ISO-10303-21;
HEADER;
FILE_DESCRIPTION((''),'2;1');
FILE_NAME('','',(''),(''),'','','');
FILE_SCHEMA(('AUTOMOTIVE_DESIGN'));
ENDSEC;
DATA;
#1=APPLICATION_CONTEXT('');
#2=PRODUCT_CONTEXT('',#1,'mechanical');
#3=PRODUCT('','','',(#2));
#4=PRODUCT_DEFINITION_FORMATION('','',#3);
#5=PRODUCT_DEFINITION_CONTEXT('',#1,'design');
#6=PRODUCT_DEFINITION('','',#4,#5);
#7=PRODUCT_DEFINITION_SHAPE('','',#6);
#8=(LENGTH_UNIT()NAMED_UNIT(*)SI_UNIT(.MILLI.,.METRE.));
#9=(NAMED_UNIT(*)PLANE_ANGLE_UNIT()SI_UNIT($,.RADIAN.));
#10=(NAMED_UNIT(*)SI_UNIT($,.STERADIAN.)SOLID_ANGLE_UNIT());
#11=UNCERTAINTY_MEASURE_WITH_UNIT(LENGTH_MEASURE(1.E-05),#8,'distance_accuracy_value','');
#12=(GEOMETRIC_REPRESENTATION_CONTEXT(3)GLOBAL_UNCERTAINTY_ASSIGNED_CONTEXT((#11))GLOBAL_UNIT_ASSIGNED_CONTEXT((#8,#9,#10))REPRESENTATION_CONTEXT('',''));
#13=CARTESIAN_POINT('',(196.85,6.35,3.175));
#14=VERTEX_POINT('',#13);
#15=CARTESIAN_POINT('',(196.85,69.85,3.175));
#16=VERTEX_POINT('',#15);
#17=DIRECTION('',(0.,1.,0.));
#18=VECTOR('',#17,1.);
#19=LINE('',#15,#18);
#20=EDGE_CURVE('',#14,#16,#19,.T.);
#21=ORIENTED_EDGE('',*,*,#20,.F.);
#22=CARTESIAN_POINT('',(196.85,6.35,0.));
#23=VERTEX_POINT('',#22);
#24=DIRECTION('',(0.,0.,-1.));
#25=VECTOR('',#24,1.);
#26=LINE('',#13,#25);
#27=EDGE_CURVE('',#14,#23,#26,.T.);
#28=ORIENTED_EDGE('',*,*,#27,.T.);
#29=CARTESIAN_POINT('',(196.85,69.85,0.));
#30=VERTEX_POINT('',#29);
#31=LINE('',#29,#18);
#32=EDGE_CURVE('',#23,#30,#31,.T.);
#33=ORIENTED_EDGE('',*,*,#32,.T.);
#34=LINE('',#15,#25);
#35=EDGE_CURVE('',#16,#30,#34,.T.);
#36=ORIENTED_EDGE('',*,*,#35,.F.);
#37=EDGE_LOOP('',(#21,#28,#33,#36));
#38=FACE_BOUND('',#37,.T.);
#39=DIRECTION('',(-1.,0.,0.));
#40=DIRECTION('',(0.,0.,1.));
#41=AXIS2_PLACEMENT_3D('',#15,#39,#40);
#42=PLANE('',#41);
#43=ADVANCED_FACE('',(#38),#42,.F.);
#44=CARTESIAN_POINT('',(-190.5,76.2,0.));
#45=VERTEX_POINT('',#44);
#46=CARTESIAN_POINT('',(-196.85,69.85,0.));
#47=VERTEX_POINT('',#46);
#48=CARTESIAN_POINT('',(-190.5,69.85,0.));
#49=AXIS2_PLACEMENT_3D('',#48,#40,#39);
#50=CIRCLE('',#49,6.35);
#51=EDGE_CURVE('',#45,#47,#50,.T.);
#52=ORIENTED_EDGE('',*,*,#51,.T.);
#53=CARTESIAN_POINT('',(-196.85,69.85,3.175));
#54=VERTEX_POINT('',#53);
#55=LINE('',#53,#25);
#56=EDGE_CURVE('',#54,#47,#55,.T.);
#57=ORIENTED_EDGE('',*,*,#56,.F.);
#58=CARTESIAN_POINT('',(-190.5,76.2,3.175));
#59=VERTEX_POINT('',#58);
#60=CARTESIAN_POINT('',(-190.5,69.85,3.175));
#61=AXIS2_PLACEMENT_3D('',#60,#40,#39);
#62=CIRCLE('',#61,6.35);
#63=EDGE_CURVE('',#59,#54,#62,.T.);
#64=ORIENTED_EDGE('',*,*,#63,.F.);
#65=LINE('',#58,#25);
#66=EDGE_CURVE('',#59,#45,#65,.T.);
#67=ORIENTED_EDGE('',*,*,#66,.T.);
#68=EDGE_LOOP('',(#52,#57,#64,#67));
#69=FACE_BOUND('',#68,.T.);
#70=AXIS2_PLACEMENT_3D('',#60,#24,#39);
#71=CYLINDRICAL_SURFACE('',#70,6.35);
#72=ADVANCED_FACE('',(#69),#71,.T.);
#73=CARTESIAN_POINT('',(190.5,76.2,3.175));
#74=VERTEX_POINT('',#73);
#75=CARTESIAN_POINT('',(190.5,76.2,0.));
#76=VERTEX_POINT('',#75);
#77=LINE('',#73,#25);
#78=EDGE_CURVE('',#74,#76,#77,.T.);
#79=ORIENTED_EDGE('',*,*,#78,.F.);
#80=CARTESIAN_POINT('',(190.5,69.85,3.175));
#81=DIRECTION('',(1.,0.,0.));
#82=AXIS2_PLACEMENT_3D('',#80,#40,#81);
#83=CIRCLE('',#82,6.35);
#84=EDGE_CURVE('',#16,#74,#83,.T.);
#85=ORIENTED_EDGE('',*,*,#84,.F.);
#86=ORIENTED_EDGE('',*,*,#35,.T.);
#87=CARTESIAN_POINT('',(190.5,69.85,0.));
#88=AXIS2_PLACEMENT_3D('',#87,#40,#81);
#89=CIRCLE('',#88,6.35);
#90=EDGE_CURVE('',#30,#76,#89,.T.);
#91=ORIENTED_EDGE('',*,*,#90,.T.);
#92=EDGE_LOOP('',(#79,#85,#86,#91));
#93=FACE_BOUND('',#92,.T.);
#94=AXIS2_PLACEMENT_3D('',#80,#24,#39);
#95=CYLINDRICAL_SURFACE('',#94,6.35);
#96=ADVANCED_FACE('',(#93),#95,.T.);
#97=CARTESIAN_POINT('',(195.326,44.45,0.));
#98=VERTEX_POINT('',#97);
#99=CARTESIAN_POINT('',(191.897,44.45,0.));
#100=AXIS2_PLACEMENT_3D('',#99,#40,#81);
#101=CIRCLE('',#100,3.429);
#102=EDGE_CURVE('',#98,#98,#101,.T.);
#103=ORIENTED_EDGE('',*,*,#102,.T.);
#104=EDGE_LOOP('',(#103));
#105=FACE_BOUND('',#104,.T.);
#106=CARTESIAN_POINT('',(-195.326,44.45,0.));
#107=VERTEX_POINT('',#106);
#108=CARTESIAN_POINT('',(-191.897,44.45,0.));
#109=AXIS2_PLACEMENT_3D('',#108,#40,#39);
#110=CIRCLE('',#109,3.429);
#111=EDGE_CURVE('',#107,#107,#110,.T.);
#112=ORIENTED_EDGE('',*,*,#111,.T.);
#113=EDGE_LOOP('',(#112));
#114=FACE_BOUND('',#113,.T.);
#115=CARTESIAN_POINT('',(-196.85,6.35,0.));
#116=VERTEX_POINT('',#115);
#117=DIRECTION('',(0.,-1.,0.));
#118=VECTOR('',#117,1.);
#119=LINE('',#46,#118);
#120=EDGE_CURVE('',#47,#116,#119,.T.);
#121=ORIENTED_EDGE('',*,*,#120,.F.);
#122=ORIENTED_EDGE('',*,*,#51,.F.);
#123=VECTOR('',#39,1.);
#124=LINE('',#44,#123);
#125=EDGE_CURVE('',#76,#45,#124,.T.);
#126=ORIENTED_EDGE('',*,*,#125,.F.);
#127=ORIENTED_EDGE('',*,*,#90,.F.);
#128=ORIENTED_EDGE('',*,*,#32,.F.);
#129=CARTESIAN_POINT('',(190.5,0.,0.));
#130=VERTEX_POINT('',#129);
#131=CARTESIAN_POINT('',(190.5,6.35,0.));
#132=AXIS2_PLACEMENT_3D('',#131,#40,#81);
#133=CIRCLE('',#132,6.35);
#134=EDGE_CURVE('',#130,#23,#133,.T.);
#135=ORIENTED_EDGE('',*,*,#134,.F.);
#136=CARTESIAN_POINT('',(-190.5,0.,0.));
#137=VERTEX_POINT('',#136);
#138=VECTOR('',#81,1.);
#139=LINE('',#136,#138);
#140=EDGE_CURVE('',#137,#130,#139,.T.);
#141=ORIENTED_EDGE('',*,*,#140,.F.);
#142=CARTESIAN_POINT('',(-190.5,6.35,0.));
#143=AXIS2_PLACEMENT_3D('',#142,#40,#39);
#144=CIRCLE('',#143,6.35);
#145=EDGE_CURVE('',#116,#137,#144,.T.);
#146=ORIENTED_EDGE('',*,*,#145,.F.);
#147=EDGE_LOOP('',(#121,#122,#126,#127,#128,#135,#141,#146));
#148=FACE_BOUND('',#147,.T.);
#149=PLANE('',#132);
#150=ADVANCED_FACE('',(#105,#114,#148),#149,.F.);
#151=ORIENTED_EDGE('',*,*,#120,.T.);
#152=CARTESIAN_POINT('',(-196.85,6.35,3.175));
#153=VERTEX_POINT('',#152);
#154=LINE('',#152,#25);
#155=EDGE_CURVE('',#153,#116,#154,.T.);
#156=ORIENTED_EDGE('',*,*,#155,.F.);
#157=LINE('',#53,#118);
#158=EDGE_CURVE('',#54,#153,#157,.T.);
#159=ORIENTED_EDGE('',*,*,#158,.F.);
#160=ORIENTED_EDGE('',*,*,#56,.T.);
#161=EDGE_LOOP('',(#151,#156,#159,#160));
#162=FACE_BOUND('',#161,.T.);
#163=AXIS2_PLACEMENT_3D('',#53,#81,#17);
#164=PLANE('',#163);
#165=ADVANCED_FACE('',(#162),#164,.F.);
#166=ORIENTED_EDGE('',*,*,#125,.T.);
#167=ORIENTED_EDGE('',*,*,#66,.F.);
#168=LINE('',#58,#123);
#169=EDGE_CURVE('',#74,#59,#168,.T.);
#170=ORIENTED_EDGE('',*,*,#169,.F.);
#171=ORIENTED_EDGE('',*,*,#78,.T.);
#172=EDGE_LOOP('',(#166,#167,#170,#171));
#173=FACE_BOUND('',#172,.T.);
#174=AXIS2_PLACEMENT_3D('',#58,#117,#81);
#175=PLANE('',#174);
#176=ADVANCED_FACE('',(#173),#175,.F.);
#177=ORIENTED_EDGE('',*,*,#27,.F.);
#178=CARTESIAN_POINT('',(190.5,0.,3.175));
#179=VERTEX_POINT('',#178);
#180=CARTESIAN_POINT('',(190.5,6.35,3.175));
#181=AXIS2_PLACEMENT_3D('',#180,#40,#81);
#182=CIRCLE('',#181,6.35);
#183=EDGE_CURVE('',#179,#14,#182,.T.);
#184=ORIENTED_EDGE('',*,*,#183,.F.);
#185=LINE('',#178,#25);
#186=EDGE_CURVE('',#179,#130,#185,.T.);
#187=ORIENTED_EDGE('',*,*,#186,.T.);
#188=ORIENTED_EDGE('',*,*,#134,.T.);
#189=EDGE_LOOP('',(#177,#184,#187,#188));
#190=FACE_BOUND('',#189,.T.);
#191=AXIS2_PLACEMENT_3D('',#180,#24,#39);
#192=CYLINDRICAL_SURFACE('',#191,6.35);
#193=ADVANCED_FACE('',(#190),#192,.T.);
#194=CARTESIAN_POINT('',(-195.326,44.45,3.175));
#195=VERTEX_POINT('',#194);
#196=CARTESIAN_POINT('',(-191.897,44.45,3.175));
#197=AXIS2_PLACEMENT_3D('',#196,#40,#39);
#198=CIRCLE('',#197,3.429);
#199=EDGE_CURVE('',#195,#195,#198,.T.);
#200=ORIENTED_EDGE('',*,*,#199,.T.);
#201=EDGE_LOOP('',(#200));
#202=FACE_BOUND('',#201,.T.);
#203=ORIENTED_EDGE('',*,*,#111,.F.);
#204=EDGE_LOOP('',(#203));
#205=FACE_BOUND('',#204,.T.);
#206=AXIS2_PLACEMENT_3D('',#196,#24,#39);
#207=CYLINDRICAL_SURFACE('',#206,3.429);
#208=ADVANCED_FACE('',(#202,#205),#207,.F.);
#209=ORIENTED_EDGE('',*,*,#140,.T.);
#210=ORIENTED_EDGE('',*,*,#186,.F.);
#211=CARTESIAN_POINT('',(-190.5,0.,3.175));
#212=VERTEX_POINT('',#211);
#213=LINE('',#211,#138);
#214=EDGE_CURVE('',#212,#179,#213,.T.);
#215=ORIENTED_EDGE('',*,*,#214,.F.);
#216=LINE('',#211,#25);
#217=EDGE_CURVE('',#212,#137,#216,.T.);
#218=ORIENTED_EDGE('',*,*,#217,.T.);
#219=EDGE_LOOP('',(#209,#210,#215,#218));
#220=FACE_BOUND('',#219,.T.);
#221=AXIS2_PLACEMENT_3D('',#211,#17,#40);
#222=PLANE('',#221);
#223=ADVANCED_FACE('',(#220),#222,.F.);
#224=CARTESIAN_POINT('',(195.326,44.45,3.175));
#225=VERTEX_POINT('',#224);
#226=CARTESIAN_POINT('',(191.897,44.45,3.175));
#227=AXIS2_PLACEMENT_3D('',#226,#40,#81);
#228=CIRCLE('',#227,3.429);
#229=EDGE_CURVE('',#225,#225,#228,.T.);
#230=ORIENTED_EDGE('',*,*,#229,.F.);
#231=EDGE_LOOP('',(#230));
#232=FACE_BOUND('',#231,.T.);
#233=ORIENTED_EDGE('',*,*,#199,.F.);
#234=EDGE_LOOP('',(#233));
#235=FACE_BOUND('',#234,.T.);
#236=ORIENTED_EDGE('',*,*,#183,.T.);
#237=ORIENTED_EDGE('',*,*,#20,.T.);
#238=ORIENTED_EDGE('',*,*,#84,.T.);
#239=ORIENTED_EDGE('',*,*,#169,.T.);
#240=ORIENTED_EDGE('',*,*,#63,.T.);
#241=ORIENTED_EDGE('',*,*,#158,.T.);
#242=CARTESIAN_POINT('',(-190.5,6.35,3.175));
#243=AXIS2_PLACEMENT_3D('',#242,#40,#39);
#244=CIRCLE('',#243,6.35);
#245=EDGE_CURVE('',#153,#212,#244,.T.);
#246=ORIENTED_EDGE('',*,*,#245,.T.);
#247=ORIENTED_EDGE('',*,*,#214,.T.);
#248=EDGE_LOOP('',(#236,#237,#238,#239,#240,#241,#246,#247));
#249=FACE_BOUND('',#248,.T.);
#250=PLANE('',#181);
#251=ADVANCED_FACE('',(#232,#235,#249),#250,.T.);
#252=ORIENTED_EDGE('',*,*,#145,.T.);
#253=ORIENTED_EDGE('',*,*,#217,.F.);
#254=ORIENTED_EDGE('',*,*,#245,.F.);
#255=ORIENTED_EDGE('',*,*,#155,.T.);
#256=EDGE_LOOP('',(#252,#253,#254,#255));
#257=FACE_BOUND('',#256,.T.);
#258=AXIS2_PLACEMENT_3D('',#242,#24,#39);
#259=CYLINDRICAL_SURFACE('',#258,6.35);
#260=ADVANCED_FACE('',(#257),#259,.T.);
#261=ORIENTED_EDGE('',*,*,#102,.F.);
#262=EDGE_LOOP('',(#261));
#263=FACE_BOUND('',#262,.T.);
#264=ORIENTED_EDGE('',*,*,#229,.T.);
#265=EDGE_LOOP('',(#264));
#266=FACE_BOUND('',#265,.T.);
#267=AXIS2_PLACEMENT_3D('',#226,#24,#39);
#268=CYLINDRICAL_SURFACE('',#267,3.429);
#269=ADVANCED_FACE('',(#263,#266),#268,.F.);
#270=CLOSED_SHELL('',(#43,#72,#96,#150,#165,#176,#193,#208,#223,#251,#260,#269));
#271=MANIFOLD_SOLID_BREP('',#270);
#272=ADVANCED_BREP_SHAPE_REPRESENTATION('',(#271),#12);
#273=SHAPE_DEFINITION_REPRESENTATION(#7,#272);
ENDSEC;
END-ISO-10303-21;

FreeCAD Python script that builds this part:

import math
import FreeCAD as App
import Part
import Sketcher
Q = App.Units.Quantity

doc = App.newDocument("Part")
body = doc.addObject("PartDesign::Body", "Body")

sketch1 = doc.addObject("Sketcher::SketchObject", "Sketch")
body.addObject(sketch1)
sketch1.AttachmentSupport = (doc.XY_Plane, [""])
sketch1.MapMode = "FlatFace"
sketch1.addGeometry(Part.LineSegment(App.Vector(-196.8, 69.8, 0), App.Vector(-196.8, 6.3, 0)), False)
sketch1.addGeometry(Part.ArcOfCircle(Part.Circle(App.Vector(-190.5, 6.3, 0), App.Vector(0, 0, 1), 6.3), math.radians(180), math.radians(270)), False)
sketch1.addGeometry(Part.LineSegment(App.Vector(-190.5, 0, 0), App.Vector(190.5, 0, 0)), False)
sketch1.addGeometry(Part.ArcOfCircle(Part.Circle(App.Vector(190.5, 6.3, 0), App.Vector(0, 0, 1), 6.3), math.radians(-90), math.radians(0)), False)
sketch1.addGeometry(Part.LineSegment(App.Vector(196.8, 6.3, 0), App.Vector(196.8, 69.8, 0)), False)
sketch1.addGeometry(Part.ArcOfCircle(Part.Circle(App.Vector(190.5, 69.9, 0), App.Vector(0, 0, 1), 6.3), math.radians(0), math.radians(90)), False)
sketch1.addGeometry(Part.LineSegment(App.Vector(190.5, 76.2, 0), App.Vector(-190.5, 76.2, 0)), False)
sketch1.addGeometry(Part.ArcOfCircle(Part.Circle(App.Vector(-190.5, 69.9, 0), App.Vector(0, 0, 1), 6.3), math.radians(90), math.radians(180)), False)
sketch1.addGeometry(Part.Circle(App.Vector(-191.9, 44.5, 0), App.Vector(0, 0, 1), 3.4), False)
sketch1.addGeometry(Part.Circle(App.Vector(191.9, 44.5, 0), App.Vector(0, 0, 1), 3.4), False)
sketch1.addConstraint(Sketcher.Constraint("Tangent", 0, 2, 1, 1))
sketch1.addConstraint(Sketcher.Constraint("Tangent", 1, 2, 2, 1))
sketch1.addConstraint(Sketcher.Constraint("Tangent", 2, 2, 3, 1))
sketch1.addConstraint(Sketcher.Constraint("Tangent", 3, 2, 4, 1))
sketch1.addConstraint(Sketcher.Constraint("Tangent", 4, 2, 5, 1))
sketch1.addConstraint(Sketcher.Constraint("Tangent", 5, 2, 6, 1))
sketch1.addConstraint(Sketcher.Constraint("Tangent", 6, 2, 7, 1))
sketch1.addConstraint(Sketcher.Constraint("Tangent", 7, 2, 0, 1))
sketch1.addConstraint(Sketcher.Constraint("Vertical", 0))
sketch1.addConstraint(Sketcher.Constraint("Horizontal", 2))
sketch1.addConstraint(Sketcher.Constraint("Vertical", 4))
sketch1.addConstraint(Sketcher.Constraint("Horizontal", 6))
sketch1.addConstraint(Sketcher.Constraint("Equal", 1, 3))
sketch1.addConstraint(Sketcher.Constraint("Equal", 3, 5))
sketch1.addConstraint(Sketcher.Constraint("Equal", 5, 7))
sketch1.addConstraint(Sketcher.Constraint("Equal", 8, 9))
sketch1.addConstraint(Sketcher.Constraint("Symmetric", 1, 2, 2, 2, -1, 1))
sketch1.addConstraint(Sketcher.Constraint("Symmetric", 8, 3, 9, 3, -2))
sketch1.addConstraint(Sketcher.Constraint("Diameter", 8, Q("0.27 in")))
sketch1.addConstraint(Sketcher.Constraint("DistanceX", 2, 1, 2, 2, Q("15 in")))
sketch1.addConstraint(Sketcher.Constraint("Radius", 1, Q("0.25 in")))
sketch1.addConstraint(Sketcher.Constraint("DistanceY", 0, 2, 0, 1, Q("2.5 in")))
sketch1.addConstraint(Sketcher.Constraint("DistanceY", 8, 3, 7, 3, Q("1 in")))
sketch1.addConstraint(Sketcher.Constraint("DistanceX", 8, 3, 9, 3, Q("15.11 in")))
pad1 = doc.addObject("PartDesign::Pad", "Pad")
body.addObject(pad1)
pad1.Profile = sketch1
pad1.Length = Q("0.125 in")

doc.recompute()
